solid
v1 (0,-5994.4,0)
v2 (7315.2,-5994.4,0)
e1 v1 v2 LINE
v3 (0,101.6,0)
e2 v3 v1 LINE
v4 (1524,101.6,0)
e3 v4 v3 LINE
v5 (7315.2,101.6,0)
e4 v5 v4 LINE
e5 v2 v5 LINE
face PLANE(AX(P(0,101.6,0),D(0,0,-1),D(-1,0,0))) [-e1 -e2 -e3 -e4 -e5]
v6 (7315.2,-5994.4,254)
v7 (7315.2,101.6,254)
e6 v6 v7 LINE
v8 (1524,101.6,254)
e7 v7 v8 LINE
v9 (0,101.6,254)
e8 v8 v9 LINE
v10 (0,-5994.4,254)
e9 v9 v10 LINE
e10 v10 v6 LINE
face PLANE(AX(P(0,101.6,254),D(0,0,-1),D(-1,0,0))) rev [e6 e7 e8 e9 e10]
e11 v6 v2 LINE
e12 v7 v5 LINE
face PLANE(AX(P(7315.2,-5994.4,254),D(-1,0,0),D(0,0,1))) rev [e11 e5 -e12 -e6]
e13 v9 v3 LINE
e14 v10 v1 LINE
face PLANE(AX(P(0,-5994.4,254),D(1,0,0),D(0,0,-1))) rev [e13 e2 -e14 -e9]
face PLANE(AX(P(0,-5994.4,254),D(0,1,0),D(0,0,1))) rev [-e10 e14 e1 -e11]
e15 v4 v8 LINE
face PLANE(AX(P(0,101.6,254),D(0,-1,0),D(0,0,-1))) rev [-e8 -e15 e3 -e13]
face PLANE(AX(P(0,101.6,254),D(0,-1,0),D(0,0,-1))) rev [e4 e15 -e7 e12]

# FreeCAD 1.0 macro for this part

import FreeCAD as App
import Part
import Sketcher
from FreeCAD import Vector
Q = App.Units.Quantity


def add_polygon(sketch, points):
    """Adds a closed chain of lines whose ends are joined by coincident constraints."""
    first, n = sketch.GeometryCount, len(points)
    for a, b in zip(points, points[1:] + points[:1]):
        sketch.addGeometry(Part.LineSegment(App.Vector(*a, 0), App.Vector(*b, 0)), False)
    for i in range(n):
        sketch.addConstraint(Sketcher.Constraint("Coincident", first + i, 2, first + (i + 1) % n, 1))

doc = App.newDocument("Part")
params = doc.addObject("Spreadsheet::Sheet", "Params")
for row, (alias, value) in enumerate([
    ("sketch1_width", "288 in"),
    ("sketch1_height", "240 in"),
    ("pad1_length", "10 in"),
], start=1):
    params.set(f"A{row}", alias)
    params.set(f"B{row}", "=" + value)
    params.setAlias(f"B{row}", alias)

body = doc.addObject("PartDesign::Body", "Body")

# Sketch on XY plane
sketch1 = body.newObject("Sketcher::SketchObject", "Sketch")
sketch1.AttachmentSupport = (doc.getObject("XY_Plane"), [""])
sketch1.MapMode = "FlatFace"
add_polygon(sketch1, [(0, 102), (0, -5994), (7315, -5994), (7315, 102)])  # lines 0-3
sketch1.addConstraint([
    Sketcher.Constraint("Vertical", 0),
    Sketcher.Constraint("Horizontal", 1),
    Sketcher.Constraint("Vertical", 2),
    Sketcher.Constraint("Horizontal", 3),
    Sketcher.Constraint("PointOnObject", 0, 2, -2),
    Sketcher.Constraint("DistanceX", 1, 1, 1, 2, Q("288 in")),
    Sketcher.Constraint("DistanceY", 0, 2, 0, 1, Q("240 in")),
    Sketcher.Constraint("DistanceY", 0, 2, -1, 1, Q("236 in")),
])
sketch1.setExpression("Constraints[9]", "Params.sketch1_width")
sketch1.setExpression("Constraints[10]", "Params.sketch1_height")
pad1 = body.newObject("PartDesign::Pad", "Pad")
pad1.Profile = sketch1
pad1.setExpression("Length", "Params.pad1_length")

doc.recompute()
